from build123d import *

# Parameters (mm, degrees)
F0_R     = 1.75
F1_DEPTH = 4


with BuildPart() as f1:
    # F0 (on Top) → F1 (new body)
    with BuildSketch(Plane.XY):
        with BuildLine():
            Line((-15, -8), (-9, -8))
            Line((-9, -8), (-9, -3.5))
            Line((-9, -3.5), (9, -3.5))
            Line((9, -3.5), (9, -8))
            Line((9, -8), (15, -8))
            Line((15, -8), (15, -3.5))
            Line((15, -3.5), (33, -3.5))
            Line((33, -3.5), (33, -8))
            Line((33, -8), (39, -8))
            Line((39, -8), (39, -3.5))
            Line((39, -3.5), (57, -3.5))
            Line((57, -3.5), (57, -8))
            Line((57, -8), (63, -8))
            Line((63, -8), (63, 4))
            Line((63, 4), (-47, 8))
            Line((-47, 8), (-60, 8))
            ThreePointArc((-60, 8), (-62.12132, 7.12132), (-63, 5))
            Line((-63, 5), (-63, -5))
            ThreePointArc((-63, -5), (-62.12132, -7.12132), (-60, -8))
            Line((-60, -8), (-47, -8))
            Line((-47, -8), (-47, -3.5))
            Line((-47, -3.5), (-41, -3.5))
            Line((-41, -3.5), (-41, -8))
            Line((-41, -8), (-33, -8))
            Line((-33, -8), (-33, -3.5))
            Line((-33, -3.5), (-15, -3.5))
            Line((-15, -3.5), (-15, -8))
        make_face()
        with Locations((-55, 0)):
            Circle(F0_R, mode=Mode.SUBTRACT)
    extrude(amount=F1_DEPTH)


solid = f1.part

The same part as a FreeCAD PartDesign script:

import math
import FreeCAD as App
import Part
import Sketcher

V = App.Vector
Q = App.Units.Quantity

doc = App.newDocument("Part")
body = doc.addObject("PartDesign::Body", "Body")

# Sketch on XY plane
sketch1 = body.newObject("Sketcher::SketchObject", "Sketch")
sketch1.AttachmentSupport = (doc.getObject("XY_Plane"), [""])
sketch1.MapMode = "FlatFace"
sketch1.addGeometry(Part.LineSegment(V(-15, -8, 0), V(-9, -8, 0)), False)
sketch1.addGeometry(Part.LineSegment(V(-9, -8, 0), V(-9, -3.5, 0)), False)
sketch1.addGeometry(Part.LineSegment(V(-9, -3.5, 0), V(9, -3.5, 0)), False)
sketch1.addGeometry(Part.LineSegment(V(9, -3.5, 0), V(9, -8, 0)), False)
sketch1.addGeometry(Part.LineSegment(V(9, -8, 0), V(15, -8, 0)), False)
sketch1.addGeometry(Part.LineSegment(V(15, -8, 0), V(15, -3.5, 0)), False)
sketch1.addGeometry(Part.LineSegment(V(15, -3.5, 0), V(33, -3.5, 0)), False)
sketch1.addGeometry(Part.LineSegment(V(33, -3.5, 0), V(33, -8, 0)), False)
sketch1.addGeometry(Part.LineSegment(V(33, -8, 0), V(39, -8, 0)), False)
sketch1.addGeometry(Part.LineSegment(V(39, -8, 0), V(39, -3.5, 0)), False)
sketch1.addGeometry(Part.LineSegment(V(39, -3.5, 0), V(57, -3.5, 0)), False)
sketch1.addGeometry(Part.LineSegment(V(57, -3.5, 0), V(57, -8, 0)), False)
sketch1.addGeometry(Part.LineSegment(V(57, -8, 0), V(63, -8, 0)), False)
sketch1.addGeometry(Part.LineSegment(V(63, -8, 0), V(63, 4, 0)), False)
sketch1.addGeometry(Part.LineSegment(V(63, 4, 0), V(-47, 8, 0)), False)
sketch1.addGeometry(Part.LineSegment(V(-47, 8, 0), V(-60, 8, 0)), False)
sketch1.addGeometry(Part.ArcOfCircle(Part.Circle(V(-59.999999, 4.999999, 0), V(0, 0, 1), 3.000001), math.radians(90.000022), math.radians(179.999978)), False)
sketch1.addGeometry(Part.LineSegment(V(-63, 5, 0), V(-63, -5, 0)), False)
sketch1.addGeometry(Part.ArcOfCircle(Part.Circle(V(-59.999999, -4.999999, 0), V(0, 0, 1), 3.000001), math.radians(-179.999978), math.radians(-90.000022)), False)
sketch1.addGeometry(Part.LineSegment(V(-60, -8, 0), V(-47, -8, 0)), False)
sketch1.addGeometry(Part.LineSegment(V(-47, -8, 0), V(-47, -3.5, 0)), False)
sketch1.addGeometry(Part.LineSegment(V(-47, -3.5, 0), V(-41, -3.5, 0)), False)
sketch1.addGeometry(Part.LineSegment(V(-41, -3.5, 0), V(-41, -8, 0)), False)
sketch1.addGeometry(Part.LineSegment(V(-41, -8, 0), V(-33, -8, 0)), False)
sketch1.addGeometry(Part.LineSegment(V(-33, -8, 0), V(-33, -3.5, 0)), False)
sketch1.addGeometry(Part.LineSegment(V(-33, -3.5, 0), V(-15, -3.5, 0)), False)
sketch1.addGeometry(Part.LineSegment(V(-15, -3.5, 0), V(-15, -8, 0)), False)
sketch1.addGeometry(Part.Circle(V(-55, 0, 0), V(0, 0, 1), 1.75), False)
sketch1.addConstraint(Sketcher.Constraint("Coincident", 0, 2, 1, 1))
sketch1.addConstraint(Sketcher.Constraint("Coincident", 1, 2, 2, 1))
sketch1.addConstraint(Sketcher.Constraint("Coincident", 2, 2, 3, 1))
sketch1.addConstraint(Sketcher.Constraint("Coincident", 3, 2, 4, 1))
sketch1.addConstraint(Sketcher.Constraint("Coincident", 4, 2, 5, 1))
sketch1.addConstraint(Sketcher.Constraint("Coincident", 5, 2, 6, 1))
sketch1.addConstraint(Sketcher.Constraint("Coincident", 6, 2, 7, 1))
sketch1.addConstraint(Sketcher.Constraint("Coincident", 7, 2, 8, 1))
sketch1.addConstraint(Sketcher.Constraint("Coincident", 8, 2, 9, 1))
sketch1.addConstraint(Sketcher.Constraint("Coincident", 9, 2, 10, 1))
sketch1.addConstraint(Sketcher.Constraint("Coincident", 10, 2, 11, 1))
sketch1.addConstraint(Sketcher.Constraint("Coincident", 11, 2, 12, 1))
sketch1.addConstraint(Sketcher.Constraint("Coincident", 12, 2, 13, 1))
sketch1.addConstraint(Sketcher.Constraint("Coincident", 13, 2, 14, 1))
sketch1.addConstraint(Sketcher.Constraint("Coincident", 14, 2, 15, 1))
sketch1.addConstraint(Sketcher.Constraint("Tangent", 15, 2, 16, 1))
sketch1.addConstraint(Sketcher.Constraint("Tangent", 16, 2, 17, 1))
sketch1.addConstraint(Sketcher.Constraint("Tangent", 17, 2, 18, 1))
sketch1.addConstraint(Sketcher.Constraint("Tangent", 18, 2, 19, 1))
sketch1.addConstraint(Sketcher.Constraint("Coincident", 19, 2, 20, 1))
sketch1.addConstraint(Sketcher.Constraint("Coincident", 20, 2, 21, 1))
sketch1.addConstraint(Sketcher.Constraint("Coincident", 21, 2, 22, 1))
sketch1.addConstraint(Sketcher.Constraint("Coincident", 22, 2, 23, 1))
sketch1.addConstraint(Sketcher.Constraint("Coincident", 23, 2, 24, 1))
sketch1.addConstraint(Sketcher.Constraint("Coincident", 24, 2, 25, 1))
sketch1.addConstraint(Sketcher.Constraint("Coincident", 25, 2, 26, 1))
sketch1.addConstraint(Sketcher.Constraint("Coincident", 26, 2, 0, 1))
sketch1.addConstraint(Sketcher.Constraint("Horizontal", 0))
sketch1.addConstraint(Sketcher.Constraint("Vertical", 1))
sketch1.addConstraint(Sketcher.Constraint("Horizontal", 2))
sketch1.addConstraint(Sketcher.Constraint("Vertical", 3))
sketch1.addConstraint(Sketcher.Constraint("Horizontal", 4))
sketch1.addConstraint(Sketcher.Constraint("Vertical", 5))
sketch1.addConstraint(Sketcher.Constraint("Horizontal", 6))
sketch1.addConstraint(Sketcher.Constraint("Vertical", 7))
sketch1.addConstraint(Sketcher.Constraint("Horizontal", 8))
sketch1.addConstraint(Sketcher.Constraint("Vertical", 9))
sketch1.addConstraint(Sketcher.Constraint("Horizontal", 10))
sketch1.addConstraint(Sketcher.Constraint("Vertical", 11))
sketch1.addConstraint(Sketcher.Constraint("Horizontal", 12))
sketch1.addConstraint(Sketcher.Constraint("Vertical", 13))
sketch1.addConstraint(Sketcher.Constraint("Horizontal", 15))
sketch1.addConstraint(Sketcher.Constraint("Vertical", 17))
sketch1.addConstraint(Sketcher.Constraint("Horizontal", 19))
sketch1.addConstraint(Sketcher.Constraint("Vertical", 20))
sketch1.addConstraint(Sketcher.Constraint("Horizontal", 21))
sketch1.addConstraint(Sketcher.Constraint("Vertical", 22))
sketch1.addConstraint(Sketcher.Constraint("Horizontal", 23))
sketch1.addConstraint(Sketcher.Constraint("Vertical", 24))
sketch1.addConstraint(Sketcher.Constraint("Horizontal", 25))
sketch1.addConstraint(Sketcher.Constraint("Vertical", 26))
sketch1.addConstraint(Sketcher.Constraint("Equal", 16, 18))
sketch1.addConstraint(Sketcher.Constraint("Symmetric", 0, 2, 3, 2, -2))
sketch1.addConstraint(Sketcher.Constraint("Symmetric", 7, 2, 23, 2, -2))
sketch1.addConstraint(Sketcher.Constraint("Symmetric", 5, 2, 25, 2, -2))
sketch1.addConstraint(Sketcher.Constraint("Symmetric", 14, 2, 19, 2, -1))
sketch1.addConstraint(Sketcher.Constraint("PointOnObject", 27, 3, -1))
sketch1.addConstraint(Sketcher.Constraint("Horizontal", 2, 2, 5, 2))
sketch1.addConstraint(Sketcher.Constraint("Horizontal", 4, 2, 7, 2))
sketch1.addConstraint(Sketcher.Constraint("Horizontal", 6, 2, 9, 2))
sketch1.addConstraint(Sketcher.Constraint("Horizontal", 8, 2, 11, 2))
sketch1.addConstraint(Sketcher.Constraint("Horizontal", 12, 2, 18, 2))
sketch1.addConstraint(Sketcher.Constraint("Horizontal", 10, 2, 20, 2))
sketch1.addConstraint(Sketcher.Constraint("Equal", 2, 6))
sketch1.addConstraint(Sketcher.Constraint("Equal", 4, 8))
sketch1.addConstraint(Sketcher.Constraint("Equal", 6, 10))
sketch1.addConstraint(Sketcher.Constraint("Equal", 8, 12))
sketch1.addConstraint(Sketcher.Constraint("Equal", 12, 21))
sketch1.addConstraint(Sketcher.Constraint("Radius", 16, Q("3.000001 mm")))
sketch1.addConstraint(Sketcher.Constraint("Diameter", 27, Q("3.5 mm")))
sketch1.addConstraint(Sketcher.Constraint("DistanceX", 0, 1, 0, 2, Q("6 mm")))
sketch1.addConstraint(Sketcher.Constraint("DistanceX", 2, 1, 2, 2, Q("18 mm")))
sketch1.addConstraint(Sketcher.Constraint("DistanceX", 15, 2, 15, 1, Q("13 mm")))
sketch1.addConstraint(Sketcher.Constraint("DistanceX", 23, 1, 23, 2, Q("8 mm")))
sketch1.addConstraint(Sketcher.Constraint("DistanceY", 13, 1, 13, 2, Q("12 mm")))
sketch1.addConstraint(Sketcher.Constraint("DistanceY", 17, 2, 17, 1, Q("10 mm")))
sketch1.addConstraint(Sketcher.Constraint("DistanceY", 1, 1, 1, 2, Q("4.5 mm")))
sketch1.addConstraint(Sketcher.Constraint("DistanceX", 27, 3, -1, 1, Q("55 mm")))
pad1 = body.newObject("PartDesign::Pad", "Pad")
pad1.Profile = sketch1
pad1.Length = 4

doc.recompute()
